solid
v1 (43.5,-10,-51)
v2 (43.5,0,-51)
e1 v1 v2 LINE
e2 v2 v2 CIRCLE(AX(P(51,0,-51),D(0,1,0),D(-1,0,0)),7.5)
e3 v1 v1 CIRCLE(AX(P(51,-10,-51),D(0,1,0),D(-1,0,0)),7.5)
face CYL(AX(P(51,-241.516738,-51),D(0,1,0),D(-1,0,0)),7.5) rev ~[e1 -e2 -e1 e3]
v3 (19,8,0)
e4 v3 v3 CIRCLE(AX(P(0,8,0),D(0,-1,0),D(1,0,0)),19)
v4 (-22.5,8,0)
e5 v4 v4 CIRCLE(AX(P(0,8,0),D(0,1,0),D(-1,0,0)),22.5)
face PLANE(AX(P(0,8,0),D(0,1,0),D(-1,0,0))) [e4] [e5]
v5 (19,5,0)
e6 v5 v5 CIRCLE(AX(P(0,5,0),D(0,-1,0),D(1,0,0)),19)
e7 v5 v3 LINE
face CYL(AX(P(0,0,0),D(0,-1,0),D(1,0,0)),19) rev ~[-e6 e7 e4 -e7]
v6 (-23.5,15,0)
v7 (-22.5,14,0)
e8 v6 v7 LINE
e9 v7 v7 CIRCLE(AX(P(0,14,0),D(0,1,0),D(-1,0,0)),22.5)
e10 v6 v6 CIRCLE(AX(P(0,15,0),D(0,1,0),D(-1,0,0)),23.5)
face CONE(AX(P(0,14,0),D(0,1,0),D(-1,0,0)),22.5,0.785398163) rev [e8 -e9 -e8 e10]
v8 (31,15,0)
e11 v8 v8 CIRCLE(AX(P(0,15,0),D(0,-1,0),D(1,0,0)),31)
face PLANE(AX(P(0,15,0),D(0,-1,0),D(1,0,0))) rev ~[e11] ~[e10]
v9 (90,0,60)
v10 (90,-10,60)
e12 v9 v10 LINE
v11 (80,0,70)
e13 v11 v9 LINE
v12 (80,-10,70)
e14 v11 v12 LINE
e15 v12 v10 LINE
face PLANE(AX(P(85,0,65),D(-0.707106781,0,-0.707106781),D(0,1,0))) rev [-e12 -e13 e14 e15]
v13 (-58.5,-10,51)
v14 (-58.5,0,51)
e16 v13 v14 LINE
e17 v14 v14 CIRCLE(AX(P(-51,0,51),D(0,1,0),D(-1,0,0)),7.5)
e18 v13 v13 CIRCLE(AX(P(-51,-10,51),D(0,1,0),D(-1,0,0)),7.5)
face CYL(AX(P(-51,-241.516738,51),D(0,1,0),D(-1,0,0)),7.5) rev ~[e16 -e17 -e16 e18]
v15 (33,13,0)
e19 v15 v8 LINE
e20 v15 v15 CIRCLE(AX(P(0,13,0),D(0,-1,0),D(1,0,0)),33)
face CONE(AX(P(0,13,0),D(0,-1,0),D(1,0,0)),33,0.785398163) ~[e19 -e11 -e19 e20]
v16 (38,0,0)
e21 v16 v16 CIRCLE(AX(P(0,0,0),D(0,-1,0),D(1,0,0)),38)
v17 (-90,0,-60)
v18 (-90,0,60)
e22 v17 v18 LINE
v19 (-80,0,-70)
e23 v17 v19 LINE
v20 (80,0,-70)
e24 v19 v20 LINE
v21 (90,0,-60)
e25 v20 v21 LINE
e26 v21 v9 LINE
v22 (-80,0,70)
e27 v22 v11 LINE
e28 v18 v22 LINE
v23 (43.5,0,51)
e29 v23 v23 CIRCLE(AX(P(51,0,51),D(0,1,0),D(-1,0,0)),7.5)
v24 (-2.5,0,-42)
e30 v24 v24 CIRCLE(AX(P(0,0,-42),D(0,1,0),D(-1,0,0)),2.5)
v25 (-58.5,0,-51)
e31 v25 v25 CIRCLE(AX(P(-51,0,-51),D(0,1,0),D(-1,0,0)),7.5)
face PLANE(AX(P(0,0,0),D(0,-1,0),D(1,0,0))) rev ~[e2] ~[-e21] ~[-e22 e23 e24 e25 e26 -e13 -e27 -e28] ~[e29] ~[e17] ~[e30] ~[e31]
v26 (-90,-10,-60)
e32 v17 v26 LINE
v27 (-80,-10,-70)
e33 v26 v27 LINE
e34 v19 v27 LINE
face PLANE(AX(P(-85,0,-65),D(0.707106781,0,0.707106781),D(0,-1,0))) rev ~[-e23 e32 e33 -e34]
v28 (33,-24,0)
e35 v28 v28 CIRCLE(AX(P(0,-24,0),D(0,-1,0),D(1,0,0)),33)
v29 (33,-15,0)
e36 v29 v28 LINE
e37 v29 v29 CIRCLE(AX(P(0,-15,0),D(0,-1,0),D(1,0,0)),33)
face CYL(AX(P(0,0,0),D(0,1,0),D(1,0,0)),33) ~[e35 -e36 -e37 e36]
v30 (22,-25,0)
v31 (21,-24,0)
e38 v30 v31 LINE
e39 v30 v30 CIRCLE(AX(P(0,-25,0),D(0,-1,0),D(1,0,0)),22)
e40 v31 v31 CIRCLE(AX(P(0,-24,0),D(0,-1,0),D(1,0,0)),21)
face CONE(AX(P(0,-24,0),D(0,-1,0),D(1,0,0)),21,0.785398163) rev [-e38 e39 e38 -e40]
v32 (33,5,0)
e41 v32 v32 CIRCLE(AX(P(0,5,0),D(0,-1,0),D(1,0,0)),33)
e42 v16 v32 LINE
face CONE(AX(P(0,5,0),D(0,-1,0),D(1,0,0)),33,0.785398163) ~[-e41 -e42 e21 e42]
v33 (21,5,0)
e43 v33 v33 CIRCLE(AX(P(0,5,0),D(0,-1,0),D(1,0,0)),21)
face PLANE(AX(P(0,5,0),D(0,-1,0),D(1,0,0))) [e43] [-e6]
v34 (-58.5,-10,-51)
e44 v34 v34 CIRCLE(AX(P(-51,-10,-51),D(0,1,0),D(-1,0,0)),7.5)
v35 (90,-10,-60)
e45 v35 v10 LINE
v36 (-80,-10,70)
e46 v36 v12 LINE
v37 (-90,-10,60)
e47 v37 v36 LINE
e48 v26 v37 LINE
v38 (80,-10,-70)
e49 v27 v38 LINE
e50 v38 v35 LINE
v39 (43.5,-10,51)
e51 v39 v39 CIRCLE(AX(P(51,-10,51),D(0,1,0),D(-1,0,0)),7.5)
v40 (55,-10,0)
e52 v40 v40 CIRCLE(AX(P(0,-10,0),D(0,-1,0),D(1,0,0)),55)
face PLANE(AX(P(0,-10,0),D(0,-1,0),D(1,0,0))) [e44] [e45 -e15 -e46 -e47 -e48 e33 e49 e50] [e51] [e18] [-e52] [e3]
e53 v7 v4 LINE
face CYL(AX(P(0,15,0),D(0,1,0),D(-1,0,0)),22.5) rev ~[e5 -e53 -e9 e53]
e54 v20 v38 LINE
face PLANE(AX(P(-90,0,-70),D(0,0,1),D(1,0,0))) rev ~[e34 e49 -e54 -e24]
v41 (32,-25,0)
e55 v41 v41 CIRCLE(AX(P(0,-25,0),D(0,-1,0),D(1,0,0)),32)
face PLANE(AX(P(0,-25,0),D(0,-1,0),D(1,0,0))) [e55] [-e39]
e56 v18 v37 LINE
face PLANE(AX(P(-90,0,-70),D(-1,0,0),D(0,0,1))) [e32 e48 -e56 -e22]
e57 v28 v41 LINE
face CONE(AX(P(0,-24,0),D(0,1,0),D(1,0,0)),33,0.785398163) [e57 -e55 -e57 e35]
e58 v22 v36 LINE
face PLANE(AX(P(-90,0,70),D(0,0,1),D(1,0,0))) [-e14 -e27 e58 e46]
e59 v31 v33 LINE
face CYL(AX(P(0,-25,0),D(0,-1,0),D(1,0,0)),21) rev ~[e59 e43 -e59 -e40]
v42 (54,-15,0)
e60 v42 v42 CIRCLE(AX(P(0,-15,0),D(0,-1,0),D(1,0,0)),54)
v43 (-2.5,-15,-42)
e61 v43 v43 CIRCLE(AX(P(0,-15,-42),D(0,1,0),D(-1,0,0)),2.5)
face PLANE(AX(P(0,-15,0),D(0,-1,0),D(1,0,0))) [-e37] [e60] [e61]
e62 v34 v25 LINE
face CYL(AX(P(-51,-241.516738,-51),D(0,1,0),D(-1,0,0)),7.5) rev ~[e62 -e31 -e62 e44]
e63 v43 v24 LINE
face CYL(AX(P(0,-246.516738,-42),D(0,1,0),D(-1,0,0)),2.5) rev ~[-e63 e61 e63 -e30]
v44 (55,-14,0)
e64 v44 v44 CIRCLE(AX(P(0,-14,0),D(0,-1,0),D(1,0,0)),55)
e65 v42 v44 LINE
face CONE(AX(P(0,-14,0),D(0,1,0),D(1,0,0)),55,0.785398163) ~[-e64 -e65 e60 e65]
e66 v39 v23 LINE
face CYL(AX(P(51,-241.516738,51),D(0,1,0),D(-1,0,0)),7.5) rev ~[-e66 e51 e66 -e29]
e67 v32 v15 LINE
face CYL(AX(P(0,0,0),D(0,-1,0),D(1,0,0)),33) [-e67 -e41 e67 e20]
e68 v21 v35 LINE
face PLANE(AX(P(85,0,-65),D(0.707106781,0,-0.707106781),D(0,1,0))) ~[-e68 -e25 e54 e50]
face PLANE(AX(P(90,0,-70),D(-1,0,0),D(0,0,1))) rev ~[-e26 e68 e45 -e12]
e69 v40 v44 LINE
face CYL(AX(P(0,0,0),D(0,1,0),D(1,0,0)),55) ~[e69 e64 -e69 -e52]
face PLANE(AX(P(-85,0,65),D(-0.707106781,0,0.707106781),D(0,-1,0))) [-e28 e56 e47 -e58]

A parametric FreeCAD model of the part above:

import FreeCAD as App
import Part
import Sketcher
Q = App.Units.Quantity


def edges_at(feature, points):
    """Names of the edges that pass closest to the given points."""
    edges = feature.Shape.Edges
    near = lambda p: min(range(len(edges)), key=lambda i: edges[i].distToShape(Part.Vertex(*p))[0])
    return sorted({f"Edge{near(p) + 1}" for p in points})


def add_polygon(sketch, points):
    """Adds a closed chain of lines whose ends are joined by coincident constraints."""
    first, n = sketch.GeometryCount, len(points)
    for a, b in zip(points, points[1:] + points[:1]):
        sketch.addGeometry(Part.LineSegment(App.Vector(*a, 0), App.Vector(*b, 0)), False)
    for i in range(n):
        sketch.addConstraint(Sketcher.Constraint("Coincident", first + i, 2, first + (i + 1) % n, 1))

doc = App.newDocument("Part")
params = doc.addObject("Spreadsheet::Sheet", "Params")
for row, (alias, value) in enumerate([
    ("sketch1_diameter", "110 mm"),
    ("sketch1_width", "180 mm"),
    ("sketch1_height", "140 mm"),
    ("pad1_length", "10 mm"),
    ("sketch2_diameter", "110 mm"),
    ("sketch2_diameter2", "66 mm"),
    ("pad2_length", "15 mm"),
    ("sketch3_diameter", "66 mm"),
    ("sketch3_diameter2", "38 mm"),
    ("pad3_length", "25 mm"),
    ("pad3_length2", "15 mm"),
    ("sketch4_diameter", "42 mm"),
    ("sketch4_diameter2", "38 mm"),
    ("pocket1_length", "30 mm"),
    ("sketch5_diameter", "45 mm"),
    ("sketch5_diameter2", "38 mm"),
    ("pocket2_length", "7 mm"),
    ("sketch6_diameter", "15 mm"),
    ("hole_diameter", "15 mm"),
    ("sketch7_diameter", "5 mm"),
    ("hole2_diameter", "5 mm"),
    ("chamfer_size", "10 mm"),
    ("chamfer_size2", "10 mm"),
    ("chamfer2_size", "5 mm"),
    ("chamfer2_size2", "5 mm"),
    ("chamfer3_size", "2 mm"),
    ("chamfer3_size2", "2 mm"),
    ("chamfer4_size", "1 mm"),
    ("chamfer4_size2", "1 mm"),
], start=1):
    params.set(f"A{row}", alias)
    params.set(f"B{row}", "=" + value)
    params.setAlias(f"B{row}", alias)

body = doc.addObject("PartDesign::Body", "Body")

# Sketch on XZ plane
sketch1 = doc.addObject("Sketcher::SketchObject", "Sketch")
body.addObject(sketch1)
sketch1.AttachmentSupport = (doc.XZ_Plane, [""])
sketch1.MapMode = "FlatFace"
add_polygon(sketch1, [(-90, 70), (-90, -70), (90, -70), (90, 70)])  # lines 0-3
sketch1.addGeometry(Part.Circle(App.Vector(0, 0, 0), App.Vector(0, 0, 1), 55), False)  # 4
sketch1.addConstraint(Sketcher.Constraint("Vertical", 0))
sketch1.addConstraint(Sketcher.Constraint("Horizontal", 1))
sketch1.addConstraint(Sketcher.Constraint("Vertical", 2))
sketch1.addConstraint(Sketcher.Constraint("Horizontal", 3))
sketch1.addConstraint(Sketcher.Constraint("Coincident", 4, 3, -1, 1))
sketch1.addConstraint(Sketcher.Constraint("Symmetric", 0, 2, 2, 2, -1, 1))
sketch1.addConstraint(Sketcher.Constraint("Diameter", 4, Q("110 mm")))
sketch1.addConstraint(Sketcher.Constraint("DistanceX", 1, 1, 1, 2, Q("180 mm")))
sketch1.addConstraint(Sketcher.Constraint("DistanceY", 0, 2, 0, 1, Q("140 mm")))
sketch1.setExpression("Constraints[10]", "Params.sketch1_diameter")
sketch1.setExpression("Constraints[11]", "Params.sketch1_width")
sketch1.setExpression("Constraints[12]", "Params.sketch1_height")
pad1 = doc.addObject("PartDesign::Pad", "Pad")
body.addObject(pad1)
pad1.Profile = sketch1
pad1.setExpression("Length", "Params.pad1_length")

# Sketch on XZ plane
sketch2 = doc.addObject("Sketcher::SketchObject", "Sketch001")
body.addObject(sketch2)
sketch2.AttachmentSupport = (doc.XZ_Plane, [""])
sketch2.MapMode = "FlatFace"
sketch2.addGeometry(Part.Circle(App.Vector(0, 0, 0), App.Vector(0, 0, 1), 55), False)
sketch2.addGeometry(Part.Circle(App.Vector(0, 0, 0), App.Vector(0, 0, 1), 33), False)
sketch2.addConstraint(Sketcher.Constraint("Coincident", 0, 3, -1, 1))
sketch2.addConstraint(Sketcher.Constraint("Coincident", 1, 3, -1, 1))
sketch2.addConstraint(Sketcher.Constraint("Diameter", 0, Q("110 mm")))
sketch2.addConstraint(Sketcher.Constraint("Diameter", 1, Q("66 mm")))
sketch2.setExpression("Constraints[2]", "Params.sketch2_diameter")
sketch2.setExpression("Constraints[3]", "Params.sketch2_diameter2")
pad2 = doc.addObject("PartDesign::Pad", "Pad001")
body.addObject(pad2)
pad2.Profile = sketch2
pad2.setExpression("Length", "Params.pad2_length")

# Sketch on XZ plane
sketch3 = doc.addObject("Sketcher::SketchObject", "Sketch002")
body.addObject(sketch3)
sketch3.AttachmentSupport = (doc.XZ_Plane, [""])
sketch3.MapMode = "FlatFace"
sketch3.addGeometry(Part.Circle(App.Vector(0, 0, 0), App.Vector(0, 0, 1), 33), False)
sketch3.addGeometry(Part.Circle(App.Vector(0, 0, 0), App.Vector(0, 0, 1), 19), False)
sketch3.addConstraint(Sketcher.Constraint("Coincident", 0, 3, -1, 1))
sketch3.addConstraint(Sketcher.Constraint("Coincident", 1, 3, -1, 1))
sketch3.addConstraint(Sketcher.Constraint("Diameter", 0, Q("66 mm")))
sketch3.addConstraint(Sketcher.Constraint("Diameter", 1, Q("38 mm")))
sketch3.setExpression("Constraints[2]", "Params.sketch3_diameter")
sketch3.setExpression("Constraints[3]", "Params.sketch3_diameter2")
pad3 = doc.addObject("PartDesign::Pad", "Pad002")
body.addObject(pad3)
pad3.Profile = sketch3
pad3.Type = "TwoLengths"
pad3.setExpression("Length", "Params.pad3_length")
pad3.setExpression("Length2", "Params.pad3_length2")

# Sketch on XZ plane
sketch4 = doc.addObject("Sketcher::SketchObject", "Sketch003")
body.addObject(sketch4)
sketch4.AttachmentSupport = (doc.XZ_Plane, [""])
sketch4.MapMode = "FlatFace"
sketch4.AttachmentOffset = App.Placement(App.Vector(0, 0, 25), App.Rotation())
sketch4.addGeometry(Part.Circle(App.Vector(0, 0, 0), App.Vector(0, 0, 1), 21), False)
sketch4.addGeometry(Part.Circle(App.Vector(0, 0, 0), App.Vector(0, 0, 1), 19), False)
sketch4.addConstraint(Sketcher.Constraint("Coincident", 0, 3, -1, 1))
sketch4.addConstraint(Sketcher.Constraint("Coincident", 1, 3, -1, 1))
sketch4.addConstraint(Sketcher.Constraint("Diameter", 0, Q("42 mm")))
sketch4.addConstraint(Sketcher.Constraint("Diameter", 1, Q("38 mm")))
sketch4.setExpression("Constraints[2]", "Params.sketch4_diameter")
sketch4.setExpression("Constraints[3]", "Params.sketch4_diameter2")
pocket1 = doc.addObject("PartDesign::Pocket", "Pocket")
body.addObject(pocket1)
pocket1.Profile = sketch4
pocket1.setExpression("Length", "Params.pocket1_length")

# Sketch on XZ plane
sketch5 = doc.addObject("Sketcher::SketchObject", "Sketch004")
body.addObject(sketch5)
sketch5.AttachmentSupport = (doc.XZ_Plane, [""])
sketch5.MapMode = "FlatFace"
sketch5.AttachmentOffset = App.Placement(App.Vector(0, 0, -15), App.Rotation())
sketch5.addGeometry(Part.Circle(App.Vector(0, 0, 0), App.Vector(0, 0, 1), 22), False)
sketch5.addGeometry(Part.Circle(App.Vector(0, 0, 0), App.Vector(0, 0, 1), 19), False)
sketch5.addConstraint(Sketcher.Constraint("Coincident", 0, 3, -1, 1))
sketch5.addConstraint(Sketcher.Constraint("Coincident", 1, 3, -1, 1))
sketch5.addConstraint(Sketcher.Constraint("Diameter", 0, Q("45 mm")))
sketch5.addConstraint(Sketcher.Constraint("Diameter", 1, Q("38 mm")))
sketch5.setExpression("Constraints[2]", "Params.sketch5_diameter")
sketch5.setExpression("Constraints[3]", "Params.sketch5_diameter2")
pocket2 = doc.addObject("PartDesign::Pocket", "Pocket001")
body.addObject(pocket2)
pocket2.Profile = sketch5
pocket2.setExpression("Length", "Params.pocket2_length")
pocket2.Reversed = True

# Sketch on XZ plane
sketch6 = doc.addObject("Sketcher::SketchObject", "Sketch005")
body.addObject(sketch6)
sketch6.AttachmentSupport = (doc.XZ_Plane, [""])
sketch6.MapMode = "FlatFace"
sketch6.AttachmentOffset = App.Placement(App.Vector(0, 0, 10), App.Rotation())
sketch6.addGeometry(Part.Circle(App.Vector(-51, 51, 0), App.Vector(0, 0, 1), 8), False)
sketch6.addGeometry(Part.Circle(App.Vector(51, 51, 0), App.Vector(0, 0, 1), 8), False)
sketch6.addGeometry(Part.Circle(App.Vector(51, -51, 0), App.Vector(0, 0, 1), 8), False)
sketch6.addGeometry(Part.Circle(App.Vector(-51, -51, 0), App.Vector(0, 0, 1), 8), False)
sketch6.addConstraint(Sketcher.Constraint("Equal", 0, 1))
sketch6.addConstraint(Sketcher.Constraint("Equal", 1, 2))
sketch6.addConstraint(Sketcher.Constraint("Equal", 2, 3))
sketch6.addConstraint(Sketcher.Constraint("Symmetric", 0, 3, 2, 3, -1, 1))
sketch6.addConstraint(Sketcher.Constraint("Symmetric", 1, 3, 3, 3, -1, 1))
sketch6.addConstraint(Sketcher.Constraint("Symmetric", 0, 3, 1, 3, -2))
sketch6.addConstraint(Sketcher.Constraint("Diameter", 0, Q("15 mm")))
sketch6.addConstraint(Sketcher.Constraint("DistanceX", 0, 3, -1, 1, Q("51 mm")))
sketch6.addConstraint(Sketcher.Constraint("DistanceY", -1, 1, 0, 3, Q("51 mm")))
sketch6.setExpression("Constraints[6]", "Params.sketch6_diameter")
doc.recompute()
hole = doc.addObject("PartDesign::Hole", "Hole")
body.addObject(hole)
hole.Profile = sketch6
hole.ThreadType = "None"
hole.setExpression("Diameter", "Params.hole_diameter")
hole.DepthType = "ThroughAll"

# Sketch on XZ plane
sketch7 = doc.addObject("Sketcher::SketchObject", "Sketch006")
body.addObject(sketch7)
sketch7.AttachmentSupport = (doc.XZ_Plane, [""])
sketch7.MapMode = "FlatFace"
sketch7.AttachmentOffset = App.Placement(App.Vector(0, 0, 15), App.Rotation())
sketch7.addGeometry(Part.Circle(App.Vector(0, -42, 0), App.Vector(0, 0, 1), 2.5), False)
sketch7.addConstraint(Sketcher.Constraint("PointOnObject", 0, 3, -2))
sketch7.addConstraint(Sketcher.Constraint("Diameter", 0, Q("5 mm")))
sketch7.addConstraint(Sketcher.Constraint("DistanceY", 0, 3, -1, 1, Q("42 mm")))
sketch7.setExpression("Constraints[1]", "Params.sketch7_diameter")
doc.recompute()
hole2 = doc.addObject("PartDesign::Hole", "Hole001")
body.addObject(hole2)
hole2.Profile = sketch7
hole2.ThreadType = "None"
hole2.setExpression("Diameter", "Params.hole2_diameter")
hole2.DepthType = "ThroughAll"
doc.recompute()

chamfer = doc.addObject("PartDesign::Chamfer", "Chamfer")
body.addObject(chamfer)
chamfer.Base = (hole2, edges_at(hole2, [
    (-90, -5, 70),
    (-90, -5, -70),
    (90, -5, 70),
    (90, -5, -70),
]))
chamfer.ChamferType = "Two distances"
chamfer.setExpression("Size", "Params.chamfer_size")
chamfer.setExpression("Size2", "Params.chamfer_size2")
doc.recompute()

chamfer2 = doc.addObject("PartDesign::Chamfer", "Chamfer001")
body.addObject(chamfer2)
chamfer2.Base = (chamfer, edges_at(chamfer, [(-33, 0, 0)]))
chamfer2.ChamferType = "Two distances"
chamfer2.setExpression("Size", "Params.chamfer2_size")
chamfer2.setExpression("Size2", "Params.chamfer2_size2")
doc.recompute()

chamfer3 = doc.addObject("PartDesign::Chamfer", "Chamfer002")
body.addObject(chamfer3)
chamfer3.Base = (chamfer2, edges_at(chamfer2, [(-33, 15, 0)]))
chamfer3.ChamferType = "Two distances"
chamfer3.setExpression("Size", "Params.chamfer3_size")
chamfer3.setExpression("Size2", "Params.chamfer3_size2")
doc.recompute()

chamfer4 = doc.addObject("PartDesign::Chamfer", "Chamfer003")
body.addObject(chamfer4)
chamfer4.Base = (chamfer3, edges_at(chamfer3, [
    (22.5, 15, 0),
    (-21, -25, 0),
    (-33, -25, 0),
    (-55, -15, 0),
]))
chamfer4.ChamferType = "Two distances"
chamfer4.setExpression("Size", "Params.chamfer4_size")
chamfer4.setExpression("Size2", "Params.chamfer4_size2")

doc.recompute()
